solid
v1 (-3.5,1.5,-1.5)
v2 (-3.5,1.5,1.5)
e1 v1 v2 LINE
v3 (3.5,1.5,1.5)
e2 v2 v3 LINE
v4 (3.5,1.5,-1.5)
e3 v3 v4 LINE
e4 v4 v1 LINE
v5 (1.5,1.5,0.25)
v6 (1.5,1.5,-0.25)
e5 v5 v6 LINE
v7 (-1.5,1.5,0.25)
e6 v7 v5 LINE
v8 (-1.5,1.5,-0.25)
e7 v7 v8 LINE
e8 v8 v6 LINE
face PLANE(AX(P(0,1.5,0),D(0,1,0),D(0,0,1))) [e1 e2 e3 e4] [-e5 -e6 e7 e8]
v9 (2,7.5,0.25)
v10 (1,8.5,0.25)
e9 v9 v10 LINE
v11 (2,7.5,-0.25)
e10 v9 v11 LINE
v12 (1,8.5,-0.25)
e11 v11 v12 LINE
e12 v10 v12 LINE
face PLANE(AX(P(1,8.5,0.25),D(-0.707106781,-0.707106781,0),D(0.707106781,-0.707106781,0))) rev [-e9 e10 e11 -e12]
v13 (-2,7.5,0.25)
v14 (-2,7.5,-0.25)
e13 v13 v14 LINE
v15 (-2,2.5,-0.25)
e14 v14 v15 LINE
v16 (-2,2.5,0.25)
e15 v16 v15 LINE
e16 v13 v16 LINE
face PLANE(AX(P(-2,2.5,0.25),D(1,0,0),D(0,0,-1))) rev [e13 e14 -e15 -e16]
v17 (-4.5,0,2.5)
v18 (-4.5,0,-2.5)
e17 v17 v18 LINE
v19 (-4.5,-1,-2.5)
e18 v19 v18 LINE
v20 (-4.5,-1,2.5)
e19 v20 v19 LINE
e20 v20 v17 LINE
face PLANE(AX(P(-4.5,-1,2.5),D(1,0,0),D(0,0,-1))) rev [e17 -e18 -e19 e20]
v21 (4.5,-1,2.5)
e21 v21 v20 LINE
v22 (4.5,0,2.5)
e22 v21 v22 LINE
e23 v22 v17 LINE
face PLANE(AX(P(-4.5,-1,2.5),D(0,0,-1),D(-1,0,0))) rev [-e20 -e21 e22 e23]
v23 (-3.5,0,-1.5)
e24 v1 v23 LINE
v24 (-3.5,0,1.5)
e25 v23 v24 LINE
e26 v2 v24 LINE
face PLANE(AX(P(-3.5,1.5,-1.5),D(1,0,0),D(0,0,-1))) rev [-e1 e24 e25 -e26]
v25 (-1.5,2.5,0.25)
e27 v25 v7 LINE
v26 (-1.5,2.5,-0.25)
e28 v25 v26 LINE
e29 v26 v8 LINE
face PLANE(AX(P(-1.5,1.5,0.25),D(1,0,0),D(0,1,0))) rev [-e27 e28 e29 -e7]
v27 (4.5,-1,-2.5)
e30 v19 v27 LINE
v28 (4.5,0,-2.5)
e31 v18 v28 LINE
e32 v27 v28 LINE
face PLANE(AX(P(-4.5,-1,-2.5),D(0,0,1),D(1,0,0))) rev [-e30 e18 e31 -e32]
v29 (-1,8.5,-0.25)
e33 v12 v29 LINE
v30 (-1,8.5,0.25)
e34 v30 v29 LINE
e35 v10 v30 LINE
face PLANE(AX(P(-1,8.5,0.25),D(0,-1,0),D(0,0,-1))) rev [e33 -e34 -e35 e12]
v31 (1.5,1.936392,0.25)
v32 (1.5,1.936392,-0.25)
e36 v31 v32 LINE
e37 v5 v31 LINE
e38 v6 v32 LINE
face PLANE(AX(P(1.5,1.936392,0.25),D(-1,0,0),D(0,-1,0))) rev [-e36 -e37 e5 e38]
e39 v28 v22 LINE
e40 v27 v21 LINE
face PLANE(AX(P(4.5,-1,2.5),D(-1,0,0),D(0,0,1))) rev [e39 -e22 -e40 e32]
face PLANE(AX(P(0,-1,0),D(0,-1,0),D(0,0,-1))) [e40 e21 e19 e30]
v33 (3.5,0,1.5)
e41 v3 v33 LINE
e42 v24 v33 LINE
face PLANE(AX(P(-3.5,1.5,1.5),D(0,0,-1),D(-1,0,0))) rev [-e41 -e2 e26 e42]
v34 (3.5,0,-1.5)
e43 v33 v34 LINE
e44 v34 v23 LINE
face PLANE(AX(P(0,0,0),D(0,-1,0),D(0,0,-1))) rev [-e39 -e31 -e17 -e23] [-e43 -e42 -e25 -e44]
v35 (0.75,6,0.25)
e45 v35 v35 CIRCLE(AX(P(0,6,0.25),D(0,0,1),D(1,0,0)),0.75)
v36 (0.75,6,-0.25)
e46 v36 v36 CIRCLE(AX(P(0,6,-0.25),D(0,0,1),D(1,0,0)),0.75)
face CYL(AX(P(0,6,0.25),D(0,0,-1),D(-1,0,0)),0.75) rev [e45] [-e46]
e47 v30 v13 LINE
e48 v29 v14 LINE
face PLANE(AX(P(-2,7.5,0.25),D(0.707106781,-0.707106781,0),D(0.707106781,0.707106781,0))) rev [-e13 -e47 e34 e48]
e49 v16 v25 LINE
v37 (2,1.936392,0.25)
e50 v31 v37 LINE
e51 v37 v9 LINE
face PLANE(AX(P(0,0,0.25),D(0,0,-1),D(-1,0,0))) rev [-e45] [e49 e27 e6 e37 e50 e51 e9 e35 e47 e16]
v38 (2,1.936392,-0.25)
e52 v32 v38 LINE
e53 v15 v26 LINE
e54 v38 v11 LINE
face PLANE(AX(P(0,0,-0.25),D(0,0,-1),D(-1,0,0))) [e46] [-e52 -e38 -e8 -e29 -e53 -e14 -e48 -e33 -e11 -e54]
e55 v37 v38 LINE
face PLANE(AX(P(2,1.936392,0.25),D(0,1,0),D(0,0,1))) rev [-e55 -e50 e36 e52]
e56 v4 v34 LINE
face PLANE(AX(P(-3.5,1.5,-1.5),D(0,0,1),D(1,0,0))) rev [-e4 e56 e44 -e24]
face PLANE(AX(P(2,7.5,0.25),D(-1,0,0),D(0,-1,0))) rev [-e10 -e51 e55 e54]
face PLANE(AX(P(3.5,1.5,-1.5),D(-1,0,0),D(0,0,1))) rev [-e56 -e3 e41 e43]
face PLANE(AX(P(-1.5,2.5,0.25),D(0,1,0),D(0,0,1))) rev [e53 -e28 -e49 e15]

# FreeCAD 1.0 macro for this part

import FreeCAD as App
import Part
import Sketcher
from FreeCAD import Vector

doc = App.newDocument("Part")
body = doc.addObject("PartDesign::Body", "Body")

# Sketch on XZ plane
sketch1 = body.newObject("Sketcher::SketchObject", "Sketch")
sketch1.AttachmentSupport = (doc.getObject("XZ_Plane"), [""])
sketch1.MapMode = "FlatFace"
sketch1.addGeometry([
    Part.LineSegment(Vector(-3.5, -1.5, 0), Vector(-3.5, 1.5, 0)),
    Part.LineSegment(Vector(-3.5, 1.5, 0), Vector(3.5, 1.5, 0)),
    Part.LineSegment(Vector(3.5, 1.5, 0), Vector(3.5, -1.5, 0)),
    Part.LineSegment(Vector(3.5, -1.5, 0), Vector(-3.5, -1.5, 0)),
], False)
sketch1.addConstraint([
    Sketcher.Constraint("Coincident", 0, 2, 1, 1),
    Sketcher.Constraint("Coincident", 1, 2, 2, 1),
    Sketcher.Constraint("Coincident", 2, 2, 3, 1),
    Sketcher.Constraint("Coincident", 3, 2, 0, 1),
    Sketcher.Constraint("Vertical", 0),
    Sketcher.Constraint("Horizontal", 1),
    Sketcher.Constraint("Vertical", 2),
    Sketcher.Constraint("Horizontal", 3),
    Sketcher.Constraint("Symmetric", 0, 2, 2, 2, -1, 1),
    Sketcher.Constraint("DistanceX", 1, 1, 1, 2, 7.0),
    Sketcher.Constraint("DistanceY", 0, 1, 0, 2, 3.0),
])
pad1 = body.newObject("PartDesign::Pad", "Pad")
pad1.Profile = sketch1
pad1.Length = 1.5
pad1.Reversed = True

# Sketch on XZ plane
sketch2 = body.newObject("Sketcher::SketchObject", "Sketch001")
sketch2.AttachmentSupport = (doc.getObject("XZ_Plane"), [""])
sketch2.MapMode = "FlatFace"
sketch2.addGeometry([
    Part.LineSegment(Vector(-4, 2, 0), Vector(-4, -2, 0)),
    Part.LineSegment(Vector(-4, -2, 0), Vector(4, -2, 0)),
    Part.LineSegment(Vector(4, -2, 0), Vector(4, 2, 0)),
    Part.LineSegment(Vector(4, 2, 0), Vector(-4, 2, 0)),
], False)
sketch2.addConstraint([
    Sketcher.Constraint("Coincident", 0, 2, 1, 1),
    Sketcher.Constraint("Coincident", 1, 2, 2, 1),
    Sketcher.Constraint("Coincident", 2, 2, 3, 1),
    Sketcher.Constraint("Coincident", 3, 2, 0, 1),
    Sketcher.Constraint("Vertical", 0),
    Sketcher.Constraint("Horizontal", 1),
    Sketcher.Constraint("Vertical", 2),
    Sketcher.Constraint("Horizontal", 3),
    Sketcher.Constraint("Symmetric", 0, 2, 2, 2, -1, 1),
    Sketcher.Constraint("DistanceX", 1, 1, 1, 2, 9.0),
    Sketcher.Constraint("DistanceY", 0, 2, 0, 1, 5.0),
])
pad2 = body.newObject("PartDesign::Pad", "Pad001")
pad2.Profile = sketch2
pad2.Length = 1

# Sketch on XY plane
sketch3 = body.newObject("Sketcher::SketchObject", "Sketch002")
sketch3.AttachmentSupport = (doc.getObject("XY_Plane"), [""])
sketch3.MapMode = "FlatFace"
sketch3.addGeometry([
    Part.LineSegment(Vector(-1.5, 2.5, 0), Vector(-1.5, 1.5, 0)),  # 0
    Part.LineSegment(Vector(-1.5, 1.5, 0), Vector(1.5, 1.5, 0)),  # 1
    Part.LineSegment(Vector(1.5, 1.5, 0), Vector(1.5, 1.94, 0)),  # 2
    Part.LineSegment(Vector(1.5, 1.94, 0), Vector(2, 1.94, 0)),  # 3
    Part.LineSegment(Vector(2, 1.94, 0), Vector(2, 7.5, 0)),  # 4
    Part.LineSegment(Vector(2, 7.5, 0), Vector(1, 8.5, 0)),  # 5
    Part.LineSegment(Vector(1, 8.5, 0), Vector(-1, 8.5, 0)),  # 6
    Part.LineSegment(Vector(-1, 8.5, 0), Vector(-2, 7.5, 0)),  # 7
    Part.LineSegment(Vector(-2, 7.5, 0), Vector(-2, 2.5, 0)),  # 8
    Part.LineSegment(Vector(-2, 2.5, 0), Vector(-1.5, 2.5, 0)),  # 9
    Part.Circle(Vector(0, 6, 0), Vector(0, 0, 1), 0.75),  # 10
], False)
sketch3.addConstraint([
    Sketcher.Constraint("Coincident", 0, 2, 1, 1),
    Sketcher.Constraint("Coincident", 1, 2, 2, 1),
    Sketcher.Constraint("Coincident", 2, 2, 3, 1),
    Sketcher.Constraint("Coincident", 3, 2, 4, 1),
    Sketcher.Constraint("Coincident", 4, 2, 5, 1),
    Sketcher.Constraint("Coincident", 5, 2, 6, 1),
    Sketcher.Constraint("Coincident", 6, 2, 7, 1),
    Sketcher.Constraint("Coincident", 7, 2, 8, 1),
    Sketcher.Constraint("Coincident", 8, 2, 9, 1),
    Sketcher.Constraint("Coincident", 9, 2, 0, 1),
    Sketcher.Constraint("Vertical", 0),
    Sketcher.Constraint("Horizontal", 1),
    Sketcher.Constraint("Vertical", 2),
    Sketcher.Constraint("Horizontal", 3),
    Sketcher.Constraint("Vertical", 4),
    Sketcher.Constraint("Horizontal", 6),
    Sketcher.Constraint("Vertical", 8),
    Sketcher.Constraint("Horizontal", 9),
    Sketcher.Constraint("Symmetric", 4, 2, 7, 2, -2),
    Sketcher.Constraint("PointOnObject", 10, 3, -2),
    Sketcher.Constraint("Perpendicular", 5, 7),
    Sketcher.Constraint("Equal", 3, 9),
    Sketcher.Constraint("Equal", 5, 7),
    Sketcher.Constraint("Diameter", 10, 1.5),
    Sketcher.Constraint("DistanceX", 1, 1, 1, 2, 3.0),
    Sketcher.Constraint("DistanceX", 6, 2, 6, 1, 2.0),
    Sketcher.Constraint("DistanceY", 0, 2, 0, 1, 1.0),
    Sketcher.Constraint("DistanceY", 8, 2, 8, 1, 5.0),
    Sketcher.Constraint("DistanceX", 3, 1, 3, 2, 0.5),
    Sketcher.Constraint("DistanceY", -1, 1, 10, 3, 6.0),
    Sketcher.Constraint("DistanceY", -1, 1, 0, 2, 1.5),
    Sketcher.Constraint("DistanceY", 2, 1, 2, 2, 0.436392),
])
pad3 = body.newObject("PartDesign::Pad", "Pad002")
pad3.Profile = sketch3
pad3.Length = 0.5
pad3.Midplane = True

doc.recompute()
